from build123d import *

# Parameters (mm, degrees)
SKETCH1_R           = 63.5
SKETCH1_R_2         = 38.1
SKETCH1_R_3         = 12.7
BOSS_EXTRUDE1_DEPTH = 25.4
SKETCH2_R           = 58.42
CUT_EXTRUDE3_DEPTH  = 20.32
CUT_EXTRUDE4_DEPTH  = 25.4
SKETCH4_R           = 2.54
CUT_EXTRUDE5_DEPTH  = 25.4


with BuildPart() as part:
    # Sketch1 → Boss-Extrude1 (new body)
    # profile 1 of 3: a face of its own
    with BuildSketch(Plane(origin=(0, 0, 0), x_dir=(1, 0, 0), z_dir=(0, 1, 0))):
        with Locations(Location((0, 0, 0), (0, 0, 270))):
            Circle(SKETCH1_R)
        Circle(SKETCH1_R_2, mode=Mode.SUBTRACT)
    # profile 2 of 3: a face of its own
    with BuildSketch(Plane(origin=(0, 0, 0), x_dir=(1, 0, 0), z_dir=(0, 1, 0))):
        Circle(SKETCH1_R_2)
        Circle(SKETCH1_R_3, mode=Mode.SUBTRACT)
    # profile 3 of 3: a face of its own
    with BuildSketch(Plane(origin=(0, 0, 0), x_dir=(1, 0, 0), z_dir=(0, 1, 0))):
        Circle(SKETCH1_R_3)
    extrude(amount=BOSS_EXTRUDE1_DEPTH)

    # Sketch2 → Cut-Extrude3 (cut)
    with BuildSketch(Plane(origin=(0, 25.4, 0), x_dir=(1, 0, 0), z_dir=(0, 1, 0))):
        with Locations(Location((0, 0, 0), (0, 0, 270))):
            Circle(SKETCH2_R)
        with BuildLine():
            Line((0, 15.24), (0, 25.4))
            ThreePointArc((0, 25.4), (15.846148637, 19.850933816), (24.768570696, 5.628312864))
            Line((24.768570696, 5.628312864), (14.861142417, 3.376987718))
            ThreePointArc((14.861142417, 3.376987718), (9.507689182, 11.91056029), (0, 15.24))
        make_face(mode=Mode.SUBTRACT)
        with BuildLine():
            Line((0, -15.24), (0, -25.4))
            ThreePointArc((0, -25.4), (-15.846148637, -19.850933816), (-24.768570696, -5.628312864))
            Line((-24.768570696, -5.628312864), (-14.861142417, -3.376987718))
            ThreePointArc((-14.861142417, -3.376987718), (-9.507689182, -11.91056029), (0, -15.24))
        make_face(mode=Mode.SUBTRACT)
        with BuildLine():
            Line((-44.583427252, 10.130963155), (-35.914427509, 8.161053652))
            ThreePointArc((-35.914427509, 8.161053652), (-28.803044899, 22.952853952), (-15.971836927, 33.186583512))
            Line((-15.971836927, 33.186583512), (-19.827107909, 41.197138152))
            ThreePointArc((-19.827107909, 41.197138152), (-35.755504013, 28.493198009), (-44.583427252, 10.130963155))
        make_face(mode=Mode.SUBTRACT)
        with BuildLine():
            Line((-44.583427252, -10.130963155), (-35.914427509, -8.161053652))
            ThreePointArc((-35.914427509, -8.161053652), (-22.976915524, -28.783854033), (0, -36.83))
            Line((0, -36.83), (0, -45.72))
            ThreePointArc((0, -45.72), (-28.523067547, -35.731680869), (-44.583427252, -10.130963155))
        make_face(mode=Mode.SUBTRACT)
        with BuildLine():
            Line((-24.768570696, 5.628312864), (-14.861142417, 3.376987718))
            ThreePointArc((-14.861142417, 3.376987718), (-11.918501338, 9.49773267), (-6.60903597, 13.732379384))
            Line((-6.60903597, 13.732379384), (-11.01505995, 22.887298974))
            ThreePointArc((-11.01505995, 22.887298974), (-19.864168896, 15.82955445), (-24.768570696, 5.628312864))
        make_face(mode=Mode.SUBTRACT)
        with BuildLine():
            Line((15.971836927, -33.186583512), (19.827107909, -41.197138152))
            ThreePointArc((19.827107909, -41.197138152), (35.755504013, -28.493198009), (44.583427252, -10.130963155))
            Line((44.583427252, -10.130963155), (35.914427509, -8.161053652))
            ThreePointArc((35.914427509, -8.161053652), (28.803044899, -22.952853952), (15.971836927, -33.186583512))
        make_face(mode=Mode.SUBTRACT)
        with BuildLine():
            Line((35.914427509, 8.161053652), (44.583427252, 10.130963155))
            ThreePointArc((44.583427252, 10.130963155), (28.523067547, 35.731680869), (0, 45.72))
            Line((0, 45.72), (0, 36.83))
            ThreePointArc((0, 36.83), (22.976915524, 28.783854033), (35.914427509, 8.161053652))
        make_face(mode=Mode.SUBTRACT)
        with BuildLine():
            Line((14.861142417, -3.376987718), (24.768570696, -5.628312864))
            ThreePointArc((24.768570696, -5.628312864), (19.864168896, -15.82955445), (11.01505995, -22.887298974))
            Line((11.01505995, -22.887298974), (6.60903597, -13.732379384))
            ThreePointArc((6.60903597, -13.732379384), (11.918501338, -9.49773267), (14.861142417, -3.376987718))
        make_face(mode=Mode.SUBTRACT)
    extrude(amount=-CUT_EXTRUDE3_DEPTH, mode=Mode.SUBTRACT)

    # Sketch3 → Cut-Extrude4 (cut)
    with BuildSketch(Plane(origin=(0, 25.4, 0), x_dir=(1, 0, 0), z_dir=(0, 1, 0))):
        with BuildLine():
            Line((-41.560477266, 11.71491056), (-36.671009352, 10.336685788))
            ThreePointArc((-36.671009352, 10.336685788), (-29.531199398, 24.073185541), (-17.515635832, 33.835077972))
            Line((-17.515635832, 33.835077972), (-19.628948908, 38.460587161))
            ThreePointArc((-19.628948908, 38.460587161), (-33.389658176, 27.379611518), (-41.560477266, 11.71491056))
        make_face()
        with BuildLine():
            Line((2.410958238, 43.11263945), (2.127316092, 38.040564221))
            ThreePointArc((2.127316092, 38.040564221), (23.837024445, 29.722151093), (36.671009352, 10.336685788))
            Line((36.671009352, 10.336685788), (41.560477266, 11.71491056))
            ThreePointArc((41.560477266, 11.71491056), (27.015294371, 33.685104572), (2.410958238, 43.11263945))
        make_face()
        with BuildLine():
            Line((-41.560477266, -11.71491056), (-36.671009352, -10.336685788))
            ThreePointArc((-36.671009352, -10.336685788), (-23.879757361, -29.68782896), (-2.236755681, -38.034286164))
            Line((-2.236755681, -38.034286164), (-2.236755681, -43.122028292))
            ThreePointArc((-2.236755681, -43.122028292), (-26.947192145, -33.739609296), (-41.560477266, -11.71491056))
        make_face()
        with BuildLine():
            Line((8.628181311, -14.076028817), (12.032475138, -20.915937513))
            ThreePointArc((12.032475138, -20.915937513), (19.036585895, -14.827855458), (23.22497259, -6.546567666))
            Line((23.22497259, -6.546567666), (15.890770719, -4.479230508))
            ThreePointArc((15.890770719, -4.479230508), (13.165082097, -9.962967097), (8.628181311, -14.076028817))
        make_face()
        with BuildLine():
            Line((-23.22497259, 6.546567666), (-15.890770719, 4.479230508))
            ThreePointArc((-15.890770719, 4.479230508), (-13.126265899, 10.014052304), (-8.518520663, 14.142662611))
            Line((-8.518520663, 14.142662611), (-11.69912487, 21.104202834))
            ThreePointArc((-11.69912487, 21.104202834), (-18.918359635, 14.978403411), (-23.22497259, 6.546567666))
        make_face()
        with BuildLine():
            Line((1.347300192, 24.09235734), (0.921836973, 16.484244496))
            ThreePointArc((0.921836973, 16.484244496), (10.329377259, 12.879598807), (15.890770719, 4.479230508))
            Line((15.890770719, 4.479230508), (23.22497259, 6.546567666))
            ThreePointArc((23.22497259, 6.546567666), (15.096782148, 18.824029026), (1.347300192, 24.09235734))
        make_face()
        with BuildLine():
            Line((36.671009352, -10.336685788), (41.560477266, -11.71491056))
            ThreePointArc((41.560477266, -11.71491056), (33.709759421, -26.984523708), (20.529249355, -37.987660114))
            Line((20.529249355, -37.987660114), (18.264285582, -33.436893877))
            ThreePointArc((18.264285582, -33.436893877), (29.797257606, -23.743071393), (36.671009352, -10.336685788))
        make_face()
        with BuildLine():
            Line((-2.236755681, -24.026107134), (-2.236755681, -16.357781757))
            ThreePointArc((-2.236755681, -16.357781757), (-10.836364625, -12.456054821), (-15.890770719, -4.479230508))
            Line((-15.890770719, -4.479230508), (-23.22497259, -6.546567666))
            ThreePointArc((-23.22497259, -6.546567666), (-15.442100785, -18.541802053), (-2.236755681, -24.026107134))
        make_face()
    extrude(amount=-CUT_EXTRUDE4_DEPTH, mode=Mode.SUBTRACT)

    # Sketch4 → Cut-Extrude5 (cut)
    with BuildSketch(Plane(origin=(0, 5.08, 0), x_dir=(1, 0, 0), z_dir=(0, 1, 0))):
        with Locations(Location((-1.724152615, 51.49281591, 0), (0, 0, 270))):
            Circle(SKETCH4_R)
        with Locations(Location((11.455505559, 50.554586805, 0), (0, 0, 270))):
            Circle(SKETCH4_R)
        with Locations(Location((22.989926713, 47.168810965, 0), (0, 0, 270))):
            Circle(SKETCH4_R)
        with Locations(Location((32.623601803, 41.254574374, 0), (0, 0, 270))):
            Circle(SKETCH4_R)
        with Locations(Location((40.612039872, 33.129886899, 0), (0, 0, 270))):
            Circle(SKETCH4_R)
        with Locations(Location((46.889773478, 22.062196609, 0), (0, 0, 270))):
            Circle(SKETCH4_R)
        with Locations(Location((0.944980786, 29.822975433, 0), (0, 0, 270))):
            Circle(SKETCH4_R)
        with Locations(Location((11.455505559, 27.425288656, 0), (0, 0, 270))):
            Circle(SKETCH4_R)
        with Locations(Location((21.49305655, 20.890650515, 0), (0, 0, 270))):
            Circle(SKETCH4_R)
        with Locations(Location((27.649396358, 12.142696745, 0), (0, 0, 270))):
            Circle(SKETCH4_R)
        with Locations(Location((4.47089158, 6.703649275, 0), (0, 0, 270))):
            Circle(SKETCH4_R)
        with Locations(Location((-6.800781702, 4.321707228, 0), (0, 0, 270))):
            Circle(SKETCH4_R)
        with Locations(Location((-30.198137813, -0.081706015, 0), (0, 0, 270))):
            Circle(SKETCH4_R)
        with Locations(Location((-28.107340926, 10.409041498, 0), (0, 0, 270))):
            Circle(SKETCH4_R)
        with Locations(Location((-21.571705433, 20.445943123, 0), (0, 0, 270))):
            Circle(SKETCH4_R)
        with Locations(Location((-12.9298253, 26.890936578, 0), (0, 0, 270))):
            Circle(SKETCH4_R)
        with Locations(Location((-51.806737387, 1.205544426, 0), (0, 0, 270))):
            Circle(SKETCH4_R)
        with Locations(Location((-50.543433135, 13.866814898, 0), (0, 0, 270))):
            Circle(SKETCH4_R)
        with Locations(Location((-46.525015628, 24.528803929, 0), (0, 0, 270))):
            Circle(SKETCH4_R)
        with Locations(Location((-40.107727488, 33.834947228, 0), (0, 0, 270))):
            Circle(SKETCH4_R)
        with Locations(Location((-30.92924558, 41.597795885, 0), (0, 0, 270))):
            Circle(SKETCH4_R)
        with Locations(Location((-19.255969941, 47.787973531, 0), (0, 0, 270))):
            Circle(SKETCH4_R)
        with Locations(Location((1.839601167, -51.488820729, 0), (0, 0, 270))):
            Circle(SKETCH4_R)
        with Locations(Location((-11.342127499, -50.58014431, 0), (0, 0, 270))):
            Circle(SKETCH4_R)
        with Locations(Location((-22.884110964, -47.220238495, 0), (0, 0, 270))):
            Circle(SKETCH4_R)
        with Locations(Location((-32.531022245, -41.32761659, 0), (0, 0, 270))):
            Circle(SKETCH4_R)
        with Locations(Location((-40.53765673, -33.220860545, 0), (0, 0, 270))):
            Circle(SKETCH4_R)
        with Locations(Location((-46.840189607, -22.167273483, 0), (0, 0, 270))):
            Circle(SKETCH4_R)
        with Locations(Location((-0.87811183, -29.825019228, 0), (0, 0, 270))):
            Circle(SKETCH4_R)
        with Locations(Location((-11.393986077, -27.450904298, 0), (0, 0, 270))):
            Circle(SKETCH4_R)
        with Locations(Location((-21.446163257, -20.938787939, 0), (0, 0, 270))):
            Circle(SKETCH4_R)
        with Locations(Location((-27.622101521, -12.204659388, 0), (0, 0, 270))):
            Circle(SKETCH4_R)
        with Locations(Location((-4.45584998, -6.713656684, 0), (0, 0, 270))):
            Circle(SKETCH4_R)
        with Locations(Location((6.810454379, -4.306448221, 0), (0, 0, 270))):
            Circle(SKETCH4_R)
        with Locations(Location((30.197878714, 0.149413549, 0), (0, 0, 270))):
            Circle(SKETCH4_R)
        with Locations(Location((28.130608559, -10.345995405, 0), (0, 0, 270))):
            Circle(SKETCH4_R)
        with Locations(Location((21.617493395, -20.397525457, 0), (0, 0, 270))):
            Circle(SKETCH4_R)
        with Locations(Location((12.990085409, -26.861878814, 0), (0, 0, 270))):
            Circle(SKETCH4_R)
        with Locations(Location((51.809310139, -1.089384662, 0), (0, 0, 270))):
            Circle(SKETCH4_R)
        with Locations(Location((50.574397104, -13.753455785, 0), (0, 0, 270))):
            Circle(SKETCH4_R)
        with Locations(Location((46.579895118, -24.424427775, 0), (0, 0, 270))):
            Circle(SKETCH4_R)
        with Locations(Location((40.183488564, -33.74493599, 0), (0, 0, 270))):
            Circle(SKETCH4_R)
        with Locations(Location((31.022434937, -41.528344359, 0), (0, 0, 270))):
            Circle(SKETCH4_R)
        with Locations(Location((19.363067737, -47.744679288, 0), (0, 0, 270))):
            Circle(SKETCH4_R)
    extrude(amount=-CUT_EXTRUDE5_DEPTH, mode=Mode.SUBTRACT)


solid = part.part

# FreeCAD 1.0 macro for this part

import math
import FreeCAD as App
import Part
import Sketcher
Q = App.Units.Quantity

doc = App.newDocument("Part")
body = doc.addObject("PartDesign::Body", "Body")

# Sketch on XZ plane
sketch1 = body.newObject("Sketcher::SketchObject", "Sketch")
sketch1.AttachmentSupport = (doc.getObject("XZ_Plane"), [""])
sketch1.MapMode = "FlatFace"
sketch1.addGeometry(Part.Circle(App.Vector(0, 0, 0), App.Vector(0, 0, 1), 64), False)
sketch1.addConstraint(Sketcher.Constraint("Coincident", 0, 3, -1, 1))
sketch1.addConstraint(Sketcher.Constraint("Diameter", 0, Q("5 in")))
pad1 = body.newObject("PartDesign::Pad", "Pad")
pad1.Profile = sketch1
pad1.Length = Q("1 in")
pad1.Reversed = True

# Sketch on XZ plane
sketch2 = body.newObject("Sketcher::SketchObject", "Sketch001")
sketch2.AttachmentSupport = (doc.getObject("XZ_Plane"), [""])
sketch2.MapMode = "FlatFace"
sketch2.AttachmentOffset = App.Placement(App.Vector(0, 0, -1 * 25.4), App.Rotation())
sketch2.addGeometry(Part.Circle(App.Vector(0, 0, 0), App.Vector(0, 0, 1), 58), False)
sketch2.addGeometry(Part.LineSegment(App.Vector(-36, -8, 0), App.Vector(-45, -10, 0)), False)
sketch2.addGeometry(Part.ArcOfCircle(Part.Circle(App.Vector(0, 0, 0), App.Vector(0, 0, 1), 46), math.radians(-167), math.radians(-116)), False)
sketch2.addGeometry(Part.LineSegment(App.Vector(-20, -41, 0), App.Vector(-16, -33, 0)), False)
sketch2.addGeometry(Part.ArcOfCircle(Part.Circle(App.Vector(0, 0, 0), App.Vector(0, 0, 1), 37), math.radians(-167), math.radians(-116)), False)
sketch2.addGeometry(Part.LineSegment(App.Vector(-15, -3, 0), App.Vector(-25, -6, 0)), False)
sketch2.addGeometry(Part.ArcOfCircle(Part.Circle(App.Vector(0, 0, 0), App.Vector(0, 0, 1), 25), math.radians(-167), math.radians(-116)), False)
sketch2.addGeometry(Part.LineSegment(App.Vector(-11, -23, 0), App.Vector(-7, -14, 0)), False)
sketch2.addGeometry(Part.ArcOfCircle(Part.Circle(App.Vector(0, 0, 0), App.Vector(0, 0, 1), 15), math.radians(-167), math.radians(-116)), False)
sketch2.addGeometry(Part.ArcOfCircle(Part.Circle(App.Vector(0, 0, 0), App.Vector(0, 0, 1), 15), math.radians(90), math.radians(167)), False)
sketch2.addGeometry(Part.LineSegment(App.Vector(0, 15, 0), App.Vector(0, 25, 0)), False)
sketch2.addGeometry(Part.ArcOfCircle(Part.Circle(App.Vector(0, 0, 0), App.Vector(0, 0, 1), 25), math.radians(90), math.radians(167)), False)
sketch2.addGeometry(Part.LineSegment(App.Vector(-25, 6, 0), App.Vector(-15, 3, 0)), False)
sketch2.addGeometry(Part.ArcOfCircle(Part.Circle(App.Vector(0, 0, 0), App.Vector(0, 0, 1), 46), math.radians(90), math.radians(167)), False)
sketch2.addGeometry(Part.LineSegment(App.Vector(-45, 10, 0), App.Vector(-36, 8, 0)), False)
sketch2.addGeometry(Part.ArcOfCircle(Part.Circle(App.Vector(0, 0, 0), App.Vector(0, 0, 1), 37), math.radians(90), math.radians(167)), False)
sketch2.addGeometry(Part.LineSegment(App.Vector(0, 37, 0), App.Vector(0, 46, 0)), False)
sketch2.addGeometry(Part.ArcOfCircle(Part.Circle(App.Vector(0, 0, 0), App.Vector(0, 0, 1), 15), math.radians(-90), math.radians(-13)), False)
sketch2.addGeometry(Part.LineSegment(App.Vector(0, -15, 0), App.Vector(0, -25, 0)), False)
sketch2.addGeometry(Part.ArcOfCircle(Part.Circle(App.Vector(0, 0, 0), App.Vector(0, 0, 1), 25), math.radians(-90), math.radians(-13)), False)
sketch2.addGeometry(Part.LineSegment(App.Vector(25, -6, 0), App.Vector(15, -3, 0)), False)
sketch2.addGeometry(Part.LineSegment(App.Vector(45, -10, 0), App.Vector(36, -8, 0)), False)
sketch2.addGeometry(Part.ArcOfCircle(Part.Circle(App.Vector(0, 0, 0), App.Vector(0, 0, 1), 37), math.radians(-90), math.radians(-13)), False)
sketch2.addGeometry(Part.LineSegment(App.Vector(0, -37, 0), App.Vector(0, -46, 0)), False)
sketch2.addGeometry(Part.ArcOfCircle(Part.Circle(App.Vector(0, 0, 0), App.Vector(0, 0, 1), 46), math.radians(-90), math.radians(-13)), False)
sketch2.addGeometry(Part.ArcOfCircle(Part.Circle(App.Vector(0, 0, 0), App.Vector(0, 0, 1), 15), math.radians(13), math.radians(64)), False)
sketch2.addGeometry(Part.LineSegment(App.Vector(15, 3, 0), App.Vector(25, 6, 0)), False)
sketch2.addGeometry(Part.ArcOfCircle(Part.Circle(App.Vector(0, 0, 0), App.Vector(0, 0, 1), 25), math.radians(13), math.radians(64)), False)
sketch2.addGeometry(Part.LineSegment(App.Vector(11, 23, 0), App.Vector(7, 14, 0)), False)
sketch2.addGeometry(Part.LineSegment(App.Vector(20, 41, 0), App.Vector(16, 33, 0)), False)
sketch2.addGeometry(Part.ArcOfCircle(Part.Circle(App.Vector(0, 0, 0), App.Vector(0, 0, 1), 37), math.radians(13), math.radians(64)), False)
sketch2.addGeometry(Part.LineSegment(App.Vector(36, 8, 0), App.Vector(45, 10, 0)), False)
sketch2.addGeometry(Part.ArcOfCircle(Part.Circle(App.Vector(0, 0, 0), App.Vector(0, 0, 1), 46), math.radians(13), math.radians(64)), False)
sketch2.addConstraint(Sketcher.Constraint("Coincident", 1, 2, 2, 1))
sketch2.addConstraint(Sketcher.Constraint("Coincident", 2, 2, 3, 1))
sketch2.addConstraint(Sketcher.Constraint("Coincident", 3, 2, 4, 2))
sketch2.addConstraint(Sketcher.Constraint("Coincident", 4, 1, 1, 1))
sketch2.addConstraint(Sketcher.Constraint("Coincident", 5, 2, 6, 1))
sketch2.addConstraint(Sketcher.Constraint("Coincident", 6, 2, 7, 1))
sketch2.addConstraint(Sketcher.Constraint("Coincident", 7, 2, 8, 2))
sketch2.addConstraint(Sketcher.Constraint("Coincident", 8, 1, 5, 1))
sketch2.addConstraint(Sketcher.Constraint("Coincident", 9, 1, 10, 1))
sketch2.addConstraint(Sketcher.Constraint("Coincident", 10, 2, 11, 1))
sketch2.addConstraint(Sketcher.Constraint("Coincident", 11, 2, 12, 1))
sketch2.addConstraint(Sketcher.Constraint("Coincident", 12, 2, 9, 2))
sketch2.addConstraint(Sketcher.Constraint("Coincident", 13, 2, 14, 1))
sketch2.addConstraint(Sketcher.Constraint("Coincident", 14, 2, 15, 2))
sketch2.addConstraint(Sketcher.Constraint("Coincident", 15, 1, 16, 1))
sketch2.addConstraint(Sketcher.Constraint("Coincident", 16, 2, 13, 1))
sketch2.addConstraint(Sketcher.Constraint("Coincident", 17, 1, 18, 1))
sketch2.addConstraint(Sketcher.Constraint("Coincident", 18, 2, 19, 1))
sketch2.addConstraint(Sketcher.Constraint("Coincident", 19, 2, 20, 1))
sketch2.addConstraint(Sketcher.Constraint("Coincident", 20, 2, 17, 2))
sketch2.addConstraint(Sketcher.Constraint("Coincident", 21, 2, 22, 2))
sketch2.addConstraint(Sketcher.Constraint("Coincident", 22, 1, 23, 1))
sketch2.addConstraint(Sketcher.Constraint("Coincident", 23, 2, 24, 1))
sketch2.addConstraint(Sketcher.Constraint("Coincident", 24, 2, 21, 1))
sketch2.addConstraint(Sketcher.Constraint("Coincident", 25, 1, 26, 1))
sketch2.addConstraint(Sketcher.Constraint("Coincident", 26, 2, 27, 1))
sketch2.addConstraint(Sketcher.Constraint("Coincident", 27, 2, 28, 1))
sketch2.addConstraint(Sketcher.Constraint("Coincident", 28, 2, 25, 2))
sketch2.addConstraint(Sketcher.Constraint("Coincident", 29, 2, 30, 2))
sketch2.addConstraint(Sketcher.Constraint("Coincident", 30, 1, 31, 1))
sketch2.addConstraint(Sketcher.Constraint("Coincident", 31, 2, 32, 1))
sketch2.addConstraint(Sketcher.Constraint("Coincident", 32, 2, 29, 1))
sketch2.addConstraint(Sketcher.Constraint("Vertical", 10))
sketch2.addConstraint(Sketcher.Constraint("Vertical", 16))
sketch2.addConstraint(Sketcher.Constraint("Vertical", 18))
sketch2.addConstraint(Sketcher.Constraint("Vertical", 23))
sketch2.addConstraint(Sketcher.Constraint("Coincident", 0, 3, -1, 1))
sketch2.addConstraint(Sketcher.Constraint("Coincident", 2, 3, -1, 1))
sketch2.addConstraint(Sketcher.Constraint("Coincident", 4, 3, -1, 1))
sketch2.addConstraint(Sketcher.Constraint("Coincident", 6, 3, -1, 1))
sketch2.addConstraint(Sketcher.Constraint("Coincident", 8, 3, -1, 1))
sketch2.addConstraint(Sketcher.Constraint("Coincident", 9, 3, -1, 1))
sketch2.addConstraint(Sketcher.Constraint("Coincident", 11, 3, -1, 1))
sketch2.addConstraint(Sketcher.Constraint("Coincident", 13, 3, -1, 1))
sketch2.addConstraint(Sketcher.Constraint("Coincident", 15, 3, -1, 1))
sketch2.addConstraint(Sketcher.Constraint("Coincident", 17, 3, -1, 1))
sketch2.addConstraint(Sketcher.Constraint("Coincident", 19, 3, -1, 1))
sketch2.addConstraint(Sketcher.Constraint("Coincident", 22, 3, -1, 1))
sketch2.addConstraint(Sketcher.Constraint("Coincident", 24, 3, -1, 1))
sketch2.addConstraint(Sketcher.Constraint("Coincident", 25, 3, -1, 1))
sketch2.addConstraint(Sketcher.Constraint("Coincident", 27, 3, -1, 1))
sketch2.addConstraint(Sketcher.Constraint("Coincident", 30, 3, -1, 1))
sketch2.addConstraint(Sketcher.Constraint("Coincident", 32, 3, -1, 1))
sketch2.addConstraint(Sketcher.Constraint("Equal", 8, 9))
sketch2.addConstraint(Sketcher.Constraint("Equal", 6, 11))
sketch2.addConstraint(Sketcher.Constraint("Equal", 2, 13))
sketch2.addConstraint(Sketcher.Constraint("Equal", 4, 15))
sketch2.addConstraint(Sketcher.Constraint("Equal", 9, 17))
sketch2.addConstraint(Sketcher.Constraint("Equal", 11, 19))
sketch2.addConstraint(Sketcher.Constraint("Equal", 15, 22))
sketch2.addConstraint(Sketcher.Constraint("Equal", 13, 24))
sketch2.addConstraint(Sketcher.Constraint("Equal", 17, 25))
sketch2.addConstraint(Sketcher.Constraint("Equal", 19, 27))
sketch2.addConstraint(Sketcher.Constraint("Equal", 22, 30))
sketch2.addConstraint(Sketcher.Constraint("Equal", 24, 32))
sketch2.addConstraint(Sketcher.Constraint("PointOnObject", 9, 1, -2))
sketch2.addConstraint(Sketcher.Constraint("PointOnObject", 15, 1, -2))
sketch2.addConstraint(Sketcher.Constraint("PointOnObject", 17, 1, -2))
sketch2.addConstraint(Sketcher.Constraint("PointOnObject", 22, 1, -2))
sketch2.addConstraint(Sketcher.Constraint("Parallel", 1, 5))
sketch2.addConstraint(Sketcher.Constraint("Parallel", 3, 7))
sketch2.addConstraint(Sketcher.Constraint("Parallel", 12, 14))
sketch2.addConstraint(Sketcher.Constraint("Parallel", 14, 20))
sketch2.addConstraint(Sketcher.Constraint("Parallel", 20, 21))
sketch2.addConstraint(Sketcher.Constraint("Parallel", 5, 26))
sketch2.addConstraint(Sketcher.Constraint("Parallel", 7, 28))
sketch2.addConstraint(Sketcher.Constraint("Parallel", 28, 29))
sketch2.addConstraint(Sketcher.Constraint("Parallel", 26, 31))
sketch2.addConstraint(Sketcher.Constraint("Horizontal", 5, 2, 19, 2))
sketch2.addConstraint(Sketcher.Constraint("Horizontal", 8, 1, 20, 2))
sketch2.addConstraint(Sketcher.Constraint("Horizontal", 4, 1, 21, 2))
sketch2.addConstraint(Sketcher.Constraint("Horizontal", 12, 2, 25, 1))
sketch2.addConstraint(Sketcher.Constraint("Horizontal", 14, 2, 30, 1))
sketch2.addConstraint(Sketcher.Constraint("Vertical", 5, 2, 11, 2))
sketch2.addConstraint(Sketcher.Constraint("Vertical", 1, 2, 13, 2))
sketch2.addConstraint(Sketcher.Constraint("Radius", 6, Q("1 in")))
sketch2.addConstraint(Sketcher.Constraint("Diameter", 0, Q("4.6 in")))
sketch2.addConstraint(Sketcher.Constraint("Radius", 2, Q("1.8 in")))
sketch2.addConstraint(Sketcher.Constraint("Radius", 8, Q("0.6 in")))
sketch2.addConstraint(Sketcher.Constraint("Radius", 4, Q("1.45 in")))
sketch2.addConstraint(Sketcher.Constraint("DistanceY", 6, 2, -1, 1, 22.887299))
sketch2.addConstraint(Sketcher.Constraint("DistanceY", -1, 1, 27, 2, 22.887299))
sketch2.addConstraint(Sketcher.Constraint("DistanceX", 1, 2, 4, 1, 8.669))
sketch2.addConstraint(Sketcher.Constraint("DistanceY", 8, 1, 11, 2, 9.005301))
sketch2.addConstraint(Sketcher.Constraint("DistanceX", 28, 2, 29, 2, 9.362801))
sketch2.addConstraint(Sketcher.Constraint("DistanceY", 2, 2, -1, 1, 41.197138))
sketch2.addConstraint(Sketcher.Constraint("DistanceY", 7, 2, -1, 1, 13.732379))
sketch2.addConstraint(Sketcher.Constraint("DistanceX", 1, 2, 3, 2, 28.61159))
pocket1 = body.newObject("PartDesign::Pocket", "Pocket")
pocket1.Profile = sketch2
pocket1.Length = Q("0.8 in")
pocket1.Reversed = True

# Sketch on XZ plane
sketch3 = body.newObject("Sketcher::SketchObject", "Sketch002")
sketch3.AttachmentSupport = (doc.getObject("XZ_Plane"), [""])
sketch3.MapMode = "FlatFace"
sketch3.AttachmentOffset = App.Placement(App.Vector(0, 0, -1 * 25.4), App.Rotation())
sketch3.addGeometry(Part.LineSegment(App.Vector(-41.560477, -11.714911, 0), App.Vector(-36.671009, -10.336686, 0)), False)
sketch3.addGeometry(Part.ArcOfCircle(Part.Circle(App.Vector(0, 0, 0), App.Vector(0, 0, 1), 38.1), math.radians(-164.258118), math.radians(-117.369556)), False)
sketch3.addGeometry(Part.LineSegment(App.Vector(-17.515636, -33.835078, 0), App.Vector(-19.628949, -38.460587, 0)), False)
sketch3.addGeometry(Part.ArcOfCircle(Part.Circle(App.Vector(0, 0, 0), App.Vector(0, 0, 1), 43.18), math.radians(-164.258118), math.radians(-117.038189)), False)
sketch3.addGeometry(Part.LineSegment(App.Vector(2.410958, -43.112639, 0), App.Vector(2.127316, -38.040564, 0)), False)
sketch3.addGeometry(Part.ArcOfCircle(Part.Circle(App.Vector(0, 0, 0), App.Vector(0, 0, 1), 38.1), math.radians(-86.799222), math.radians(-15.741882)), False)
sketch3.addGeometry(Part.LineSegment(App.Vector(36.671009, -10.336686, 0), App.Vector(41.560477, -11.714911, 0)), False)
sketch3.addGeometry(Part.ArcOfCircle(Part.Circle(App.Vector(0, 0, 0), App.Vector(0, 0, 1), 43.18), math.radians(-86.799222), math.radians(-15.741882)), False)
sketch3.addGeometry(Part.LineSegment(App.Vector(-36.671009, 10.336686, 0), App.Vector(-41.560477, 11.714911, 0)), False)
sketch3.addGeometry(Part.ArcOfCircle(Part.Circle(App.Vector(0, 0, 0), App.Vector(0, 0, 1), 43.18), math.radians(92.969292), math.radians(164.258118)), False)
sketch3.addGeometry(Part.LineSegment(App.Vector(-2.236756, 43.122028, 0), App.Vector(-2.236756, 38.034286, 0)), False)
sketch3.addGeometry(Part.ArcOfCircle(Part.Circle(App.Vector(0, 0, 0), App.Vector(0, 0, 1), 38.1), math.radians(93.365627), math.radians(164.258118)), False)
sketch3.addGeometry(Part.LineSegment(App.Vector(8.628181, 14.076029, 0), App.Vector(12.032475, 20.915938, 0)), False)
sketch3.addGeometry(Part.ArcOfCircle(Part.Circle(App.Vector(0, 0, 0), App.Vector(0, 0, 1), 24.13), math.radians(15.741882), math.radians(60.089136)), False)
sketch3.addGeometry(Part.LineSegment(App.Vector(23.224973, 6.546568, 0), App.Vector(15.890771, 4.479231, 0)), False)
sketch3.addGeometry(Part.ArcOfCircle(Part.Circle(App.Vector(0, 0, 0), App.Vector(0, 0, 1), 16.51), math.radians(15.741882), math.radians(58.492958)), False)
sketch3.addGeometry(Part.LineSegment(App.Vector(-23.224973, -6.546568, 0), App.Vector(-15.890771, -4.479231, 0)), False)
sketch3.addGeometry(Part.ArcOfCircle(Part.Circle(App.Vector(0, 0, 0), App.Vector(0, 0, 1), 16.51), math.radians(-164.258118), math.radians(-121.06173)), False)
sketch3.addGeometry(Part.LineSegment(App.Vector(-8.518521, -14.142663, 0), App.Vector(-11.699125, -21.104203, 0)), False)
sketch3.addGeometry(Part.ArcOfCircle(Part.Circle(App.Vector(0, 0, 0), App.Vector(0, 0, 1), 24.13), math.radians(-164.258118), math.radians(-119.001816)), False)
sketch3.addGeometry(Part.LineSegment(App.Vector(1.3473, -24.092357, 0), App.Vector(0.921837, -16.484244, 0)), False)
sketch3.addGeometry(Part.ArcOfCircle(Part.Circle(App.Vector(0, 0, 0), App.Vector(0, 0, 1), 16.51), math.radians(-86.799222), math.radians(-15.741882)), False)
sketch3.addGeometry(Part.LineSegment(App.Vector(15.890771, -4.479231, 0), App.Vector(23.224973, -6.546568, 0)), False)
sketch3.addGeometry(Part.ArcOfCircle(Part.Circle(App.Vector(0, 0, 0), App.Vector(0, 0, 1), 24.13), math.radians(-86.799222), math.radians(-15.741882)), False)
sketch3.addGeometry(Part.LineSegment(App.Vector(41.560477, 11.714911, 0), App.Vector(36.671009, 10.336686, 0)), False)
sketch3.addGeometry(Part.ArcOfCircle(Part.Circle(App.Vector(0, 0, 0), App.Vector(0, 0, 1), 38.1), math.radians(15.741882), math.radians(61.355242)), False)
sketch3.addGeometry(Part.LineSegment(App.Vector(18.264286, 33.436894, 0), App.Vector(20.529249, 37.98766, 0)), False)
sketch3.addGeometry(Part.ArcOfCircle(Part.Circle(App.Vector(0, 0, 0), App.Vector(0, 0, 1), 43.18), math.radians(15.741882), math.radians(61.612375)), False)
sketch3.addGeometry(Part.LineSegment(App.Vector(-2.236756, 24.026107, 0), App.Vector(-2.236756, 16.357782, 0)), False)
sketch3.addGeometry(Part.ArcOfCircle(Part.Circle(App.Vector(0, 0, 0), App.Vector(0, 0, 1), 16.51), math.radians(97.78631), math.radians(164.258118)), False)
sketch3.addGeometry(Part.LineSegment(App.Vector(-15.890771, 4.479231, 0), App.Vector(-23.224973, 6.546568, 0)), False)
sketch3.addGeometry(Part.ArcOfCircle(Part.Circle(App.Vector(0, 0, 0), App.Vector(0, 0, 1), 24.13), math.radians(95.318728), math.radians(164.258118)), False)
sketch3.addConstraint(Sketcher.Constraint("Coincident", 0, 2, 1, 1))
sketch3.addConstraint(Sketcher.Constraint("Coincident", 1, 2, 2, 1))
sketch3.addConstraint(Sketcher.Constraint("Coincident", 2, 2, 3, 2))
sketch3.addConstraint(Sketcher.Constraint("Coincident", 3, 1, 0, 1))
sketch3.addConstraint(Sketcher.Constraint("Coincident", 4, 2, 5, 1))
sketch3.addConstraint(Sketcher.Constraint("Coincident", 5, 2, 6, 1))
sketch3.addConstraint(Sketcher.Constraint("Coincident", 6, 2, 7, 2))
sketch3.addConstraint(Sketcher.Constraint("Coincident", 7, 1, 4, 1))
sketch3.addConstraint(Sketcher.Constraint("Coincident", 8, 2, 9, 2))
sketch3.addConstraint(Sketcher.Constraint("Coincident", 9, 1, 10, 1))
sketch3.addConstraint(Sketcher.Constraint("Coincident", 10, 2, 11, 1))
sketch3.addConstraint(Sketcher.Constraint("Coincident", 11, 2, 8, 1))
sketch3.addConstraint(Sketcher.Constraint("Coincident", 12, 2, 13, 2))
sketch3.addConstraint(Sketcher.Constraint("Coincident", 13, 1, 14, 1))
sketch3.addConstraint(Sketcher.Constraint("Coincident", 14, 2, 15, 1))
sketch3.addConstraint(Sketcher.Constraint("Coincident", 15, 2, 12, 1))
sketch3.addConstraint(Sketcher.Constraint("Coincident", 16, 2, 17, 1))
sketch3.addConstraint(Sketcher.Constraint("Coincident", 17, 2, 18, 1))
sketch3.addConstraint(Sketcher.Constraint("Coincident", 18, 2, 19, 2))
sketch3.addConstraint(Sketcher.Constraint("Coincident", 19, 1, 16, 1))
sketch3.addConstraint(Sketcher.Constraint("Coincident", 20, 2, 21, 1))
sketch3.addConstraint(Sketcher.Constraint("Coincident", 21, 2, 22, 1))
sketch3.addConstraint(Sketcher.Constraint("Coincident", 22, 2, 23, 2))
sketch3.addConstraint(Sketcher.Constraint("Coincident", 23, 1, 20, 1))
sketch3.addConstraint(Sketcher.Constraint("Coincident", 24, 2, 25, 1))
sketch3.addConstraint(Sketcher.Constraint("Coincident", 25, 2, 26, 1))
sketch3.addConstraint(Sketcher.Constraint("Coincident", 26, 2, 27, 2))
sketch3.addConstraint(Sketcher.Constraint("Coincident", 27, 1, 24, 1))
sketch3.addConstraint(Sketcher.Constraint("Coincident", 28, 2, 29, 1))
sketch3.addConstraint(Sketcher.Constraint("Coincident", 29, 2, 30, 1))
sketch3.addConstraint(Sketcher.Constraint("Coincident", 30, 2, 31, 2))
sketch3.addConstraint(Sketcher.Constraint("Coincident", 31, 1, 28, 1))
sketch3.addConstraint(Sketcher.Constraint("Vertical", 10))
sketch3.addConstraint(Sketcher.Constraint("Vertical", 28))
sketch3.addConstraint(Sketcher.Constraint("Coincident", 1, 3, -1, 1))
sketch3.addConstraint(Sketcher.Constraint("Coincident", 3, 3, -1, 1))
sketch3.addConstraint(Sketcher.Constraint("Coincident", 5, 3, -1, 1))
sketch3.addConstraint(Sketcher.Constraint("Coincident", 7, 3, -1, 1))
sketch3.addConstraint(Sketcher.Constraint("Coincident", 9, 3, -1, 1))
sketch3.addConstraint(Sketcher.Constraint("Coincident", 11, 3, -1, 1))
sketch3.addConstraint(Sketcher.Constraint("Coincident", 13, 3, -1, 1))
sketch3.addConstraint(Sketcher.Constraint("Coincident", 15, 3, -1, 1))
sketch3.addConstraint(Sketcher.Constraint("Coincident", 17, 3, -1, 1))
sketch3.addConstraint(Sketcher.Constraint("Coincident", 19, 3, -1, 1))
sketch3.addConstraint(Sketcher.Constraint("Coincident", 21, 3, -1, 1))
sketch3.addConstraint(Sketcher.Constraint("Coincident", 23, 3, -1, 1))
sketch3.addConstraint(Sketcher.Constraint("Coincident", 25, 3, -1, 1))
sketch3.addConstraint(Sketcher.Constraint("Coincident", 27, 3, -1, 1))
sketch3.addConstraint(Sketcher.Constraint("Coincident", 29, 3, -1, 1))
sketch3.addConstraint(Sketcher.Constraint("Coincident", 31, 3, -1, 1))
sketch3.addConstraint(Sketcher.Constraint("Radius", 1, Q("1.5 in")))
sketch3.addConstraint(Sketcher.Constraint("Radius", 3, Q("1.7 in")))
sketch3.addConstraint(Sketcher.Constraint("Radius", 5, Q("1.5 in")))
sketch3.addConstraint(Sketcher.Constraint("Radius", 7, Q("1.7 in")))
sketch3.addConstraint(Sketcher.Constraint("Radius", 9, Q("1.7 in")))
sketch3.addConstraint(Sketcher.Constraint("Radius", 11, Q("1.5 in")))
sketch3.addConstraint(Sketcher.Constraint("Radius", 25, Q("1.5 in")))
sketch3.addConstraint(Sketcher.Constraint("Radius", 27, Q("1.7 in")))
sketch3.addConstraint(Sketcher.Constraint("Radius", 13, Q("0.95 in")))
sketch3.addConstraint(Sketcher.Constraint("Radius", 15, Q("0.65 in")))
sketch3.addConstraint(Sketcher.Constraint("Radius", 17, Q("0.65 in")))
sketch3.addConstraint(Sketcher.Constraint("Radius", 19, Q("0.95 in")))
sketch3.addConstraint(Sketcher.Constraint("Radius", 21, Q("0.65 in")))
sketch3.addConstraint(Sketcher.Constraint("Radius", 23, Q("0.95 in")))
sketch3.addConstraint(Sketcher.Constraint("Radius", 29, Q("0.65 in")))
sketch3.addConstraint(Sketcher.Constraint("Radius", 31, Q("0.95 in")))
sketch3.addConstraint(Sketcher.Constraint("DistanceX", -1, 1, 23, 1, 1.3473))
sketch3.addConstraint(Sketcher.Constraint("DistanceY", 2, 2, 0, 2, 28.123901))
sketch3.addConstraint(Sketcher.Constraint("DistanceX", 14, 2, 13, 1, 7.334202))
sketch3.addConstraint(Sketcher.Constraint("DistanceY", 14, 2, 15, 2, 9.596798))
sketch3.addConstraint(Sketcher.Constraint("DistanceX", 19, 1, 16, 2, 7.334202))
sketch3.addConstraint(Sketcher.Constraint("DistanceX", 21, 2, 13, 1, 7.334202))
sketch3.addConstraint(Sketcher.Constraint("DistanceY", 21, 2, 13, 1, 11.025798))
sketch3.addConstraint(Sketcher.Constraint("DistanceX", 21, 2, 22, 2, 7.334202))
sketch3.addConstraint(Sketcher.Constraint("DistanceX", 19, 1, 29, 2, 7.334202))
sketch3.addConstraint(Sketcher.Constraint("DistanceY", 19, 1, 29, 2, 11.025798))
sketch3.addConstraint(Sketcher.Constraint("DistanceX", 30, 2, 29, 2, 7.334202))
sketch3.addConstraint(Sketcher.Constraint("Distance", 12, 7.64026))
sketch3.addConstraint(Sketcher.Constraint("Distance", 18, 7.653711))
sketch3.addConstraint(Sketcher.Constraint("Distance", 26, 5.08326))
sketch3.addConstraint(Sketcher.Constraint("DistanceY", 10, 2, 10, 1, 5.087742))
sketch3.addConstraint(Sketcher.Constraint("DistanceY", 28, 2, 28, 1, 7.668325))
sketch3.addConstraint(Sketcher.Constraint("DistanceX", 0, 2, -1, 1, 36.671009))
sketch3.addConstraint(Sketcher.Constraint("DistanceY", 3, 1, -1, 1, 11.714911))
sketch3.addConstraint(Sketcher.Constraint("DistanceX", -1, 1, 5, 2, 36.671009))
sketch3.addConstraint(Sketcher.Constraint("DistanceY", 6, 2, -1, 1, 11.714911))
sketch3.addConstraint(Sketcher.Constraint("DistanceX", -1, 1, 7, 1, 2.410958))
sketch3.addConstraint(Sketcher.Constraint("DistanceY", -1, 1, 8, 2, 11.714911))
sketch3.addConstraint(Sketcher.Constraint("DistanceX", 11, 2, -1, 1, 36.671009))
sketch3.addConstraint(Sketcher.Constraint("DistanceX", 17, 2, -1, 1, 8.518521))
sketch3.addConstraint(Sketcher.Constraint("DistanceX", -1, 1, 24, 2, 36.671009))
sketch3.addConstraint(Sketcher.Constraint("DistanceX", -1, 1, 26, 2, 20.529249))
sketch3.addConstraint(Sketcher.Constraint("DistanceY", -1, 1, 27, 1, 11.714911))
sketch3.addConstraint(Sketcher.Constraint("DistanceY", 2, 2, 1, 2, 4.625509))
sketch3.addConstraint(Sketcher.Constraint("DistanceX", 1, 2, 4, 2, 19.642952))
sketch3.addConstraint(Sketcher.Constraint("DistanceY", 20, 2, 17, 2, 2.341582))
pocket2 = body.newObject("PartDesign::Pocket", "Pocket001")
pocket2.Profile = sketch3
pocket2.Length = Q("1 in")
pocket2.Reversed = True

# Sketch on XZ plane
sketch4 = body.newObject("Sketcher::SketchObject", "Sketch003")
sketch4.AttachmentSupport = (doc.getObject("XZ_Plane"), [""])
sketch4.MapMode = "FlatFace"
sketch4.AttachmentOffset = App.Placement(App.Vector(0, 0, -0.2 * 25.4), App.Rotation())
sketch4.addGeometry(Part.Circle(App.Vector(-1.7, -51.5, 0), App.Vector(0, 0, 1), 2.5), False)
sketch4.addGeometry(Part.Circle(App.Vector(11.5, -50.6, 0), App.Vector(0, 0, 1), 2.5), False)
sketch4.addGeometry(Part.Circle(App.Vector(23, -47.2, 0), App.Vector(0, 0, 1), 2.5), False)
sketch4.addGeometry(Part.Circle(App.Vector(32.6, -41.3, 0), App.Vector(0, 0, 1), 2.5), False)
sketch4.addGeometry(Part.Circle(App.Vector(40.6, -33.1, 0), App.Vector(0, 0, 1), 2.5), False)
sketch4.addGeometry(Part.Circle(App.Vector(46.9, -22.1, 0), App.Vector(0, 0, 1), 2.5), False)
sketch4.addGeometry(Part.Circle(App.Vector(0.9, -29.8, 0), App.Vector(0, 0, 1), 2.5), False)
sketch4.addGeometry(Part.Circle(App.Vector(11.5, -27.4, 0), App.Vector(0, 0, 1), 2.5), False)
sketch4.addGeometry(Part.Circle(App.Vector(21.5, -20.9, 0), App.Vector(0, 0, 1), 2.5), False)
sketch4.addGeometry(Part.Circle(App.Vector(27.6, -12.1, 0), App.Vector(0, 0, 1), 2.5), False)
sketch4.addGeometry(Part.Circle(App.Vector(4.5, -6.7, 0), App.Vector(0, 0, 1), 2.5), False)
sketch4.addGeometry(Part.Circle(App.Vector(-6.8, -4.3, 0), App.Vector(0, 0, 1), 2.5), False)
sketch4.addGeometry(Part.Circle(App.Vector(-30.2, 0.1, 0), App.Vector(0, 0, 1), 2.5), False)
sketch4.addGeometry(Part.Circle(App.Vector(-28.1, -10.4, 0), App.Vector(0, 0, 1), 2.5), False)
sketch4.addGeometry(Part.Circle(App.Vector(-21.6, -20.4, 0), App.Vector(0, 0, 1), 2.5), False)
sketch4.addGeometry(Part.Circle(App.Vector(-12.9, -26.9, 0), App.Vector(0, 0, 1), 2.5), False)
sketch4.addGeometry(Part.Circle(App.Vector(-51.8, -1.2, 0), App.Vector(0, 0, 1), 2.5), False)
sketch4.addGeometry(Part.Circle(App.Vector(-50.5, -13.9, 0), App.Vector(0, 0, 1), 2.5), False)
sketch4.addGeometry(Part.Circle(App.Vector(-46.5, -24.5, 0), App.Vector(0, 0, 1), 2.5), False)
sketch4.addGeometry(Part.Circle(App.Vector(-40.1, -33.8, 0), App.Vector(0, 0, 1), 2.5), False)
sketch4.addGeometry(Part.Circle(App.Vector(-30.9, -41.6, 0), App.Vector(0, 0, 1), 2.5), False)
sketch4.addGeometry(Part.Circle(App.Vector(-19.3, -47.8, 0), App.Vector(0, 0, 1), 2.5), False)
sketch4.addGeometry(Part.Circle(App.Vector(1.8, 51.5, 0), App.Vector(0, 0, 1), 2.5), False)
sketch4.addGeometry(Part.Circle(App.Vector(-11.3, 50.6, 0), App.Vector(0, 0, 1), 2.5), False)
sketch4.addGeometry(Part.Circle(App.Vector(-22.9, 47.2, 0), App.Vector(0, 0, 1), 2.5), False)
sketch4.addGeometry(Part.Circle(App.Vector(-32.5, 41.3, 0), App.Vector(0, 0, 1), 2.5), False)
sketch4.addGeometry(Part.Circle(App.Vector(-40.5, 33.2, 0), App.Vector(0, 0, 1), 2.5), False)
sketch4.addGeometry(Part.Circle(App.Vector(-46.8, 22.2, 0), App.Vector(0, 0, 1), 2.5), False)
sketch4.addGeometry(Part.Circle(App.Vector(-0.9, 29.8, 0), App.Vector(0, 0, 1), 2.5), False)
sketch4.addGeometry(Part.Circle(App.Vector(-11.4, 27.5, 0), App.Vector(0, 0, 1), 2.5), False)
sketch4.addGeometry(Part.Circle(App.Vector(-21.4, 20.9, 0), App.Vector(0, 0, 1), 2.5), False)
sketch4.addGeometry(Part.Circle(App.Vector(-27.6, 12.2, 0), App.Vector(0, 0, 1), 2.5), False)
sketch4.addGeometry(Part.Circle(App.Vector(-4.5, 6.7, 0), App.Vector(0, 0, 1), 2.5), False)
sketch4.addGeometry(Part.Circle(App.Vector(6.8, 4.3, 0), App.Vector(0, 0, 1), 2.5), False)
sketch4.addGeometry(Part.Circle(App.Vector(30.2, -0.1, 0), App.Vector(0, 0, 1), 2.5), False)
sketch4.addGeometry(Part.Circle(App.Vector(28.1, 10.3, 0), App.Vector(0, 0, 1), 2.5), False)
sketch4.addGeometry(Part.Circle(App.Vector(21.6, 20.4, 0), App.Vector(0, 0, 1), 2.5), False)
sketch4.addGeometry(Part.Circle(App.Vector(13, 26.9, 0), App.Vector(0, 0, 1), 2.5), False)
sketch4.addGeometry(Part.Circle(App.Vector(51.8, 1.1, 0), App.Vector(0, 0, 1), 2.5), False)
sketch4.addGeometry(Part.Circle(App.Vector(50.6, 13.8, 0), App.Vector(0, 0, 1), 2.5), False)
sketch4.addGeometry(Part.Circle(App.Vector(46.6, 24.4, 0), App.Vector(0, 0, 1), 2.5), False)
sketch4.addGeometry(Part.Circle(App.Vector(40.2, 33.7, 0), App.Vector(0, 0, 1), 2.5), False)
sketch4.addGeometry(Part.Circle(App.Vector(31, 41.5, 0), App.Vector(0, 0, 1), 2.5), False)
sketch4.addGeometry(Part.Circle(App.Vector(19.4, 47.7, 0), App.Vector(0, 0, 1), 2.5), False)
sketch4.addConstraint(Sketcher.Constraint("Equal", 0, 1))
sketch4.addConstraint(Sketcher.Constraint("Equal", 1, 2))
sketch4.addConstraint(Sketcher.Constraint("Equal", 2, 3))
sketch4.addConstraint(Sketcher.Constraint("Equal", 3, 4))
sketch4.addConstraint(Sketcher.Constraint("Equal", 4, 5))
sketch4.addConstraint(Sketcher.Constraint("Equal", 5, 6))
sketch4.addConstraint(Sketcher.Constraint("Equal", 6, 7))
sketch4.addConstraint(Sketcher.Constraint("Equal", 7, 8))
sketch4.addConstraint(Sketcher.Constraint("Equal", 8, 9))
sketch4.addConstraint(Sketcher.Constraint("Equal", 9, 10))
sketch4.addConstraint(Sketcher.Constraint("Equal", 10, 11))
sketch4.addConstraint(Sketcher.Constraint("Equal", 11, 12))
sketch4.addConstraint(Sketcher.Constraint("Equal", 12, 13))
sketch4.addConstraint(Sketcher.Constraint("Equal", 13, 14))
sketch4.addConstraint(Sketcher.Constraint("Equal", 14, 15))
sketch4.addConstraint(Sketcher.Constraint("Equal", 15, 16))
sketch4.addConstraint(Sketcher.Constraint("Equal", 16, 17))
sketch4.addConstraint(Sketcher.Constraint("Equal", 17, 18))
sketch4.addConstraint(Sketcher.Constraint("Equal", 18, 19))
sketch4.addConstraint(Sketcher.Constraint("Equal", 19, 20))
sketch4.addConstraint(Sketcher.Constraint("Equal", 20, 21))
sketch4.addConstraint(Sketcher.Constraint("Equal", 21, 22))
sketch4.addConstraint(Sketcher.Constraint("Equal", 22, 23))
sketch4.addConstraint(Sketcher.Constraint("Equal", 23, 24))
sketch4.addConstraint(Sketcher.Constraint("Equal", 24, 25))
sketch4.addConstraint(Sketcher.Constraint("Equal", 25, 26))
sketch4.addConstraint(Sketcher.Constraint("Equal", 26, 27))
sketch4.addConstraint(Sketcher.Constraint("Equal", 27, 28))
sketch4.addConstraint(Sketcher.Constraint("Equal", 28, 29))
sketch4.addConstraint(Sketcher.Constraint("Equal", 29, 30))
sketch4.addConstraint(Sketcher.Constraint("Equal", 30, 31))
sketch4.addConstraint(Sketcher.Constraint("Equal", 31, 32))
sketch4.addConstraint(Sketcher.Constraint("Equal", 32, 33))
sketch4.addConstraint(Sketcher.Constraint("Equal", 33, 34))
sketch4.addConstraint(Sketcher.Constraint("Equal", 34, 35))
sketch4.addConstraint(Sketcher.Constraint("Equal", 35, 36))
sketch4.addConstraint(Sketcher.Constraint("Equal", 36, 37))
sketch4.addConstraint(Sketcher.Constraint("Equal", 37, 38))
sketch4.addConstraint(Sketcher.Constraint("Equal", 38, 39))
sketch4.addConstraint(Sketcher.Constraint("Equal", 39, 40))
sketch4.addConstraint(Sketcher.Constraint("Equal", 40, 41))
sketch4.addConstraint(Sketcher.Constraint("Equal", 41, 42))
sketch4.addConstraint(Sketcher.Constraint("Equal", 42, 43))
sketch4.addConstraint(Sketcher.Constraint("Vertical", 1, 3, 7, 3))
sketch4.addConstraint(Sketcher.Constraint("Diameter", 0, Q("0.2 in")))
sketch4.addConstraint(Sketcher.Constraint("DistanceX", 6, 3, 1, 3, Q("0.4138002 in")))
sketch4.addConstraint(Sketcher.Constraint("DistanceY", 29, 3, 23, 3, Q("0.9106 in")))
sketch4.addConstraint(Sketcher.Constraint("DistanceX", -1, 1, 3, 3, 32.623602))
sketch4.addConstraint(Sketcher.Constraint("DistanceX", -1, 1, 22, 3, 1.839601))
sketch4.addConstraint(Sketcher.Constraint("DistanceX", 31, 3, -1, 1, 27.622102))
sketch4.addConstraint(Sketcher.Constraint("DistanceY", 1, 3, 4, 3, 17.4247))
sketch4.addConstraint(Sketcher.Constraint("DistanceY", 3, 3, 6, 3, 11.431599))
sketch4.addConstraint(Sketcher.Constraint("DistanceY", 1, 3, 7, 3, 23.129298))
sketch4.addConstraint(Sketcher.Constraint("DistanceY", 5, 3, 9, 3, 9.9195))
sketch4.addConstraint(Sketcher.Constraint("DistanceY", 8, 3, 10, 3, 14.187001))
sketch4.addConstraint(Sketcher.Constraint("DistanceY", 14, 3, 13, 3, 10.036902))
sketch4.addConstraint(Sketcher.Constraint("DistanceX", 16, 3, 12, 3, 21.6086))
sketch4.addConstraint(Sketcher.Constraint("DistanceY", 14, 3, 16, 3, 19.240399))
sketch4.addConstraint(Sketcher.Constraint("DistanceY", 21, 3, 6, 3, 17.964998))
sketch4.addConstraint(Sketcher.Constraint("DistanceY", 28, 3, 22, 3, 21.663802))
sketch4.addConstraint(Sketcher.Constraint("DistanceX", 24, 3, 28, 3, 22.005999))
sketch4.addConstraint(Sketcher.Constraint("DistanceY", 13, 3, 31, 3, 22.613701))
sketch4.addConstraint(Sketcher.Constraint("DistanceY", 34, 3, 38, 3, 1.238798))
sketch4.addConstraint(Sketcher.Constraint("DistanceX", 35, 3, 38, 3, 23.678702))
sketch4.addConstraint(Sketcher.Constraint("DistanceX", 9, 3, 39, 3, 22.925001))
sketch4.addConstraint(Sketcher.Constraint("DistanceX", 40, 3, 39, 3, 3.994502))
sketch4.addConstraint(Sketcher.Constraint("DistanceX", 36, 3, 40, 3, 24.962402))
sketch4.addConstraint(Sketcher.Constraint("DistanceY", 37, 3, 43, 3, 20.8828))
sketch4.addConstraint(Sketcher.Constraint("DistanceY", 2, 3, -1, 1, 47.168811))
sketch4.addConstraint(Sketcher.Constraint("DistanceX", -1, 1, 4, 3, 40.61204))
sketch4.addConstraint(Sketcher.Constraint("DistanceX", -1, 1, 6, 3, 0.944981))
sketch4.addConstraint(Sketcher.Constraint("DistanceY", 7, 3, -1, 1, 27.425289))
sketch4.addConstraint(Sketcher.Constraint("DistanceY", 8, 3, -1, 1, 20.890651))
sketch4.addConstraint(Sketcher.Constraint("DistanceX", -1, 1, 10, 3, 4.470892))
sketch4.addConstraint(Sketcher.Constraint("DistanceX", 11, 3, -1, 1, 6.800782))
sketch4.addConstraint(Sketcher.Constraint("DistanceX", 13, 3, -1, 1, 28.107341))
sketch4.addConstraint(Sketcher.Constraint("DistanceY", 13, 3, -1, 1, 10.409041))
sketch4.addConstraint(Sketcher.Constraint("DistanceX", 21, 3, -1, 1, 19.25597))
sketch4.addConstraint(Sketcher.Constraint("DistanceY", -1, 1, 22, 3, 51.488821))
sketch4.addConstraint(Sketcher.Constraint("DistanceX", 24, 3, -1, 1, 22.884111))
sketch4.addConstraint(Sketcher.Constraint("DistanceY", -1, 1, 24, 3, 47.220238))
sketch4.addConstraint(Sketcher.Constraint("DistanceY", -1, 1, 26, 3, 33.220861))
sketch4.addConstraint(Sketcher.Constraint("DistanceX", 27, 3, -1, 1, 46.84019))
sketch4.addConstraint(Sketcher.Constraint("DistanceX", 32, 3, -1, 1, 4.45585))
sketch4.addConstraint(Sketcher.Constraint("DistanceY", -1, 1, 33, 3, 4.306448))
sketch4.addConstraint(Sketcher.Constraint("DistanceX", -1, 1, 34, 3, 30.197879))
sketch4.addConstraint(Sketcher.Constraint("DistanceX", -1, 1, 35, 3, 28.130609))
sketch4.addConstraint(Sketcher.Constraint("DistanceY", -1, 1, 37, 3, 26.861879))
sketch4.addConstraint(Sketcher.Constraint("DistanceX", -1, 1, 41, 3, 40.183489))
sketch4.addConstraint(Sketcher.Constraint("DistanceX", 0, 3, 1, 3, 13.179658))
sketch4.addConstraint(Sketcher.Constraint("DistanceY", 0, 3, 1, 3, 0.938229))
sketch4.addConstraint(Sketcher.Constraint("DistanceX", 1, 3, 2, 3, 11.534421))
sketch4.addConstraint(Sketcher.Constraint("DistanceY", 0, 3, 3, 3, 10.238242))
sketch4.addConstraint(Sketcher.Constraint("DistanceY", 4, 3, 5, 3, 11.06769))
sketch4.addConstraint(Sketcher.Constraint("DistanceX", 3, 3, 5, 3, 14.266172))
sketch4.addConstraint(Sketcher.Constraint("DistanceX", 7, 3, 8, 3, 10.037551))
sketch4.addConstraint(Sketcher.Constraint("DistanceX", 8, 3, 9, 3, 6.15634))
sketch4.addConstraint(Sketcher.Constraint("DistanceY", 6, 3, 11, 3, 25.501268))
sketch4.addConstraint(Sketcher.Constraint("DistanceX", 12, 3, 10, 3, 34.669029))
sketch4.addConstraint(Sketcher.Constraint("DistanceY", 6, 3, 12, 3, 29.904681))
sketch4.addConstraint(Sketcher.Constraint("DistanceX", 14, 3, 15, 3, 8.64188))
sketch4.addConstraint(Sketcher.Constraint("DistanceY", 6, 3, 15, 3, 2.932039))
sketch4.addConstraint(Sketcher.Constraint("DistanceX", 15, 3, 7, 3, 24.385331))
sketch4.addConstraint(Sketcher.Constraint("DistanceY", 17, 3, 16, 3, 12.66127))
sketch4.addConstraint(Sketcher.Constraint("DistanceY", 18, 3, 17, 3, 10.661989))
sketch4.addConstraint(Sketcher.Constraint("DistanceX", 16, 3, 18, 3, 5.281722))
sketch4.addConstraint(Sketcher.Constraint("DistanceX", 18, 3, 19, 3, 6.417288))
sketch4.addConstraint(Sketcher.Constraint("DistanceY", 19, 3, 15, 3, 6.944011))
sketch4.addConstraint(Sketcher.Constraint("DistanceX", 19, 3, 20, 3, 9.178482))
sketch4.addConstraint(Sketcher.Constraint("DistanceY", 20, 3, 19, 3, 7.762849))
sketch4.addConstraint(Sketcher.Constraint("DistanceX", 23, 3, 22, 3, 13.181729))
sketch4.addConstraint(Sketcher.Constraint("DistanceY", 12, 3, 23, 3, 50.498438))
sketch4.addConstraint(Sketcher.Constraint("DistanceX", 25, 3, 24, 3, 9.646911))
sketch4.addConstraint(Sketcher.Constraint("DistanceY", 25, 3, 24, 3, 5.892622))
sketch4.addConstraint(Sketcher.Constraint("DistanceX", 26, 3, 23, 3, 29.195529))
sketch4.addConstraint(Sketcher.Constraint("DistanceX", 29, 3, 23, 3, 0.051859))
sketch4.addConstraint(Sketcher.Constraint("DistanceX", 30, 3, 28, 3, 20.568051))
sketch4.addConstraint(Sketcher.Constraint("DistanceY", 30, 3, 28, 3, 8.886231))
sketch4.addConstraint(Sketcher.Constraint("DistanceY", 32, 3, 30, 3, 14.225131))
sketch4.addConstraint(Sketcher.Constraint("DistanceX", 33, 3, 9, 3, 20.838942))
sketch4.addConstraint(Sketcher.Constraint("DistanceY", 34, 3, 33, 3, 4.455862))
sketch4.addConstraint(Sketcher.Constraint("DistanceY", 34, 3, 35, 3, 10.495409))
sketch4.addConstraint(Sketcher.Constraint("DistanceY", 35, 3, 36, 3, 10.05153))
sketch4.addConstraint(Sketcher.Constraint("DistanceX", 33, 3, 37, 3, 6.179631))
sketch4.addConstraint(Sketcher.Constraint("DistanceY", 38, 3, 39, 3, 12.664071))
sketch4.addConstraint(Sketcher.Constraint("DistanceY", 39, 3, 40, 3, 10.670972))
sketch4.addConstraint(Sketcher.Constraint("DistanceY", 40, 3, 41, 3, 9.320508))
sketch4.addConstraint(Sketcher.Constraint("DistanceY", 41, 3, 42, 3, 7.783408))
sketch4.addConstraint(Sketcher.Constraint("DistanceX", 42, 3, 40, 3, 15.55746))
sketch4.addConstraint(Sketcher.Constraint("DistanceX", 43, 3, 41, 3, 20.820421))
sketch4.addConstraint(Sketcher.Constraint("DistanceX", 17, 3, -1, 1, 50.543433))
sketch4.addConstraint(Sketcher.Constraint("DistanceY", -1, 1, 27, 3, 22.167273))
pocket3 = body.newObject("PartDesign::Pocket", "Pocket002")
pocket3.Profile = sketch4
pocket3.Length = Q("1 in")
pocket3.Reversed = True

doc.recompute()
